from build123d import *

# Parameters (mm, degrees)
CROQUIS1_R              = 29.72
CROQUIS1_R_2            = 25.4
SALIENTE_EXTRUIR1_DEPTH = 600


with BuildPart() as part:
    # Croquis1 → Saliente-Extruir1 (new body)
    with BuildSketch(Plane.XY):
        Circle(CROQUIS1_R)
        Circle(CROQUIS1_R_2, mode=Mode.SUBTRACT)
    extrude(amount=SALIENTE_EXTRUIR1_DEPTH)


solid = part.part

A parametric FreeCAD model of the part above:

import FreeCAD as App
import Part
import Sketcher

doc = App.newDocument("Part")
body = doc.addObject("PartDesign::Body", "Body")

# Sketch on XY plane
sketch1 = doc.addObject("Sketcher::SketchObject", "Sketch")
body.addObject(sketch1)
sketch1.AttachmentSupport = (doc.XY_Plane, [""])
sketch1.MapMode = "FlatFace"
sketch1.addGeometry(Part.Circle(App.Vector(0, 0, 0), App.Vector(0, 0, 1), 30), False)
sketch1.addGeometry(Part.Circle(App.Vector(0, 0, 0), App.Vector(0, 0, 1), 25), False)
sketch1.addConstraint(Sketcher.Constraint("Coincident", 0, 3, -1, 1))
sketch1.addConstraint(Sketcher.Constraint("Coincident", 1, 3, -1, 1))
sketch1.addConstraint(Sketcher.Constraint("Diameter", 1, 50.8))
sketch1.addConstraint(Sketcher.Constraint("Diameter", 0, 59.44))
pad1 = doc.addObject("PartDesign::Pad", "Pad")
body.addObject(pad1)
pad1.Profile = sketch1
pad1.Length = 600

doc.recompute()
